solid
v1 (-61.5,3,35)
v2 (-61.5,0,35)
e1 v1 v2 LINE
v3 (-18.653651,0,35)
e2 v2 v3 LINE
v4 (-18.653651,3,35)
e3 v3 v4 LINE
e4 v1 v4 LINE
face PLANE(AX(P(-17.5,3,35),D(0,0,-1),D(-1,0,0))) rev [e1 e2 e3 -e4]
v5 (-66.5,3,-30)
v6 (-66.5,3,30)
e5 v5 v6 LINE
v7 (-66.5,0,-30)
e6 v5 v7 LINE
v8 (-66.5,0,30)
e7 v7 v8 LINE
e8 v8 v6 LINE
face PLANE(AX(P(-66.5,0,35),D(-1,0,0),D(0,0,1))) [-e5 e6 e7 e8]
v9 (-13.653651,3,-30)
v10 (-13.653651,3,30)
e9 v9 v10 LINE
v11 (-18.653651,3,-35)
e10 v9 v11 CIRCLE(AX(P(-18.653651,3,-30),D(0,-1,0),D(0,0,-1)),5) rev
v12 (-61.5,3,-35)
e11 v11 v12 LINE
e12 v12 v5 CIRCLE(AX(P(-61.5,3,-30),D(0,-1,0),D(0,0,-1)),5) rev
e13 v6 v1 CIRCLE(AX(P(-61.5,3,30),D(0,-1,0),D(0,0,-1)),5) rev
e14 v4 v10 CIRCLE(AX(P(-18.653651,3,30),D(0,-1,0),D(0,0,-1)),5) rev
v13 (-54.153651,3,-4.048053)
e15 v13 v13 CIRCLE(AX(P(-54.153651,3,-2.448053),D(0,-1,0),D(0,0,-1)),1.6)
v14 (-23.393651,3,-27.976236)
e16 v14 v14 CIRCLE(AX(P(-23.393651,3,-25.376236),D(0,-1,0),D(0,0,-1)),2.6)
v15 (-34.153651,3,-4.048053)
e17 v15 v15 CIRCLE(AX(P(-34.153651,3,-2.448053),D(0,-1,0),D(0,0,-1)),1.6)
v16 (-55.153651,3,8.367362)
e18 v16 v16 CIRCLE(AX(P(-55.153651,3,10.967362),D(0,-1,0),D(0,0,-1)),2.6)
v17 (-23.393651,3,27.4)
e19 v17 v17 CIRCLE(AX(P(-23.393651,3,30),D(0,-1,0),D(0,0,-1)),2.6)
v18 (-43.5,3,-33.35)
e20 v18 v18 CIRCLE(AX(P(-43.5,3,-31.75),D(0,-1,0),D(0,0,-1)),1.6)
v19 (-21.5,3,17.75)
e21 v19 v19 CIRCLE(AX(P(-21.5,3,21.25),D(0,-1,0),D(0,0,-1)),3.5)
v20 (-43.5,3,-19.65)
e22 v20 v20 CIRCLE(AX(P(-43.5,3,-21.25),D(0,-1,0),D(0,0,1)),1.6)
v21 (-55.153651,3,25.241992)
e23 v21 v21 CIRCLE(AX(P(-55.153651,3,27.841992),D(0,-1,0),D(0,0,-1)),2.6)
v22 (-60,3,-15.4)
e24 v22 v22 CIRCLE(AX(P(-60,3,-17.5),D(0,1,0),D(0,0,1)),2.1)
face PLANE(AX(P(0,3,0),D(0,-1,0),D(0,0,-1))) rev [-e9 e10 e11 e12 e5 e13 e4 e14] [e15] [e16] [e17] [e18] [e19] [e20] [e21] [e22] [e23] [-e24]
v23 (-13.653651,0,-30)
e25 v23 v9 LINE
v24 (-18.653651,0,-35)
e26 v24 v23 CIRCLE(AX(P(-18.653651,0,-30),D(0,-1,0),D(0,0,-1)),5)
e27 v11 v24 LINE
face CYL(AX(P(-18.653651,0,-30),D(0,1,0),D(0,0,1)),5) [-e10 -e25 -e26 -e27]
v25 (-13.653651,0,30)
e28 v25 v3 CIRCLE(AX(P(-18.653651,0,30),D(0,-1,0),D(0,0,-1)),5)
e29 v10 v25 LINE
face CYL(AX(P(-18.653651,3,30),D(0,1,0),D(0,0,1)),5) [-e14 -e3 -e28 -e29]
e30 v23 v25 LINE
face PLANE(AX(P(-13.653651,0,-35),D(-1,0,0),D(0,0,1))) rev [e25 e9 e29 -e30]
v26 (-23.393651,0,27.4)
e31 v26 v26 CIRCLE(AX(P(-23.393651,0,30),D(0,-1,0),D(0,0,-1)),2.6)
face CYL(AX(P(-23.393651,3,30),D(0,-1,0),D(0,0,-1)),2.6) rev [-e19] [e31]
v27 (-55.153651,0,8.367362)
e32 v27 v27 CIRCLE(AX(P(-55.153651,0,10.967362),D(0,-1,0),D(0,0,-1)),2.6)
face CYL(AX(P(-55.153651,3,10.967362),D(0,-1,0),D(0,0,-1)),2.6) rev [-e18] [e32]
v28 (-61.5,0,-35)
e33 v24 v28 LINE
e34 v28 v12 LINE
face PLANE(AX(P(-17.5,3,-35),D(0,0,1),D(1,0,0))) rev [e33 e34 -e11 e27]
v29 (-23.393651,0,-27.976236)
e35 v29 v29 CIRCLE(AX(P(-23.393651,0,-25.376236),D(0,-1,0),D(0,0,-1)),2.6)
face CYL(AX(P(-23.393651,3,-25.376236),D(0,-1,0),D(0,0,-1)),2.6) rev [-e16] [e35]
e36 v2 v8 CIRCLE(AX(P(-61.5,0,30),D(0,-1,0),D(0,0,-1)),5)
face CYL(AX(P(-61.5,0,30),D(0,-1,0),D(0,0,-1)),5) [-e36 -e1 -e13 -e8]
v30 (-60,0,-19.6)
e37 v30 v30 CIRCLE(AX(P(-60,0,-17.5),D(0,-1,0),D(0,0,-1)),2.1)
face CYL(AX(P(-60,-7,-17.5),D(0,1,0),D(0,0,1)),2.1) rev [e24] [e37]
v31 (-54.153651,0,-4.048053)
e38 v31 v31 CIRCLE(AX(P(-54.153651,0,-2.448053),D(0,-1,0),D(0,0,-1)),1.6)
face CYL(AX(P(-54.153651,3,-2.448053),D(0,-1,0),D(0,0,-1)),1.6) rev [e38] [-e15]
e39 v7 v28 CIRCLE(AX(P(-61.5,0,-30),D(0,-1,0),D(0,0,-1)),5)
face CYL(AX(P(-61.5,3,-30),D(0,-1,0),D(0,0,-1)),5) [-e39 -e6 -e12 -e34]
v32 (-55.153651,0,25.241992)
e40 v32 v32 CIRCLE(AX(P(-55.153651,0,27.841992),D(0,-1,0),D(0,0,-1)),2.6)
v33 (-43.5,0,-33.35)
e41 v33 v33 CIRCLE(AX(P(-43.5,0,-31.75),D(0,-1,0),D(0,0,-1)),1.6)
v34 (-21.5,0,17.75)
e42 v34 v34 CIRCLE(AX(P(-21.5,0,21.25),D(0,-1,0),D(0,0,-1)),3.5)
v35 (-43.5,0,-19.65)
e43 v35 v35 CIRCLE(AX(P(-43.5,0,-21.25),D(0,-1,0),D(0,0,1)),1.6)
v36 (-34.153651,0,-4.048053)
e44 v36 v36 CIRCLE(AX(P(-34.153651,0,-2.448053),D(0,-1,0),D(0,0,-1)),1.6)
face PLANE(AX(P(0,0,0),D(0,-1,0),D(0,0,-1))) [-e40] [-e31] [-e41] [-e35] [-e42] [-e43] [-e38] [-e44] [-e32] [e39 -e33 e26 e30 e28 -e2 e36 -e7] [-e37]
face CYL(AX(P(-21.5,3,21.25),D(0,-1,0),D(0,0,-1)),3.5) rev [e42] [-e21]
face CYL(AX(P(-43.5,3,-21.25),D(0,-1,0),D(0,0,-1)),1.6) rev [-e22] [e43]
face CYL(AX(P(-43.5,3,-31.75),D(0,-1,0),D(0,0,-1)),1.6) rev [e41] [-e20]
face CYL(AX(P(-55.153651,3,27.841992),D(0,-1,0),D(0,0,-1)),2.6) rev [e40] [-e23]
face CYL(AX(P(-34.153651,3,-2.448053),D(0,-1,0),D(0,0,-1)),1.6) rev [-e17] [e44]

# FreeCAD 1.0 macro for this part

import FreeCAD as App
import Part
import Sketcher
Q = App.Units.Quantity


def edges_at(feature, points):
    """Names of the edges that pass closest to the given points."""
    edges = feature.Shape.Edges
    near = lambda p: min(range(len(edges)), key=lambda i: edges[i].distToShape(Part.Vertex(*p))[0])
    return sorted({f"Edge{near(p) + 1}" for p in points})


def add_polygon(sketch, points):
    """Adds a closed chain of lines whose ends are joined by coincident constraints."""
    first, n = sketch.GeometryCount, len(points)
    for a, b in zip(points, points[1:] + points[:1]):
        sketch.addGeometry(Part.LineSegment(App.Vector(*a, 0), App.Vector(*b, 0)), False)
    for i in range(n):
        sketch.addConstraint(Sketcher.Constraint("Coincident", first + i, 2, first + (i + 1) % n, 1))

doc = App.newDocument("Part")
body = doc.addObject("PartDesign::Body", "Body")

sketch1 = body.newObject("Sketcher::SketchObject", "Sketch")
sketch1.AttachmentSupport = (doc.getObject("XZ_Plane"), [""])
sketch1.MapMode = "FlatFace"
add_polygon(sketch1, [(-17.5, -35), (-17.5, 35), (17.5, 35), (17.5, -35)])
sketch1.addGeometry(Part.Circle(App.Vector(-7.5, 22.5, 0), App.Vector(0, 0, 1), 2.6), False)
sketch1.addGeometry(Part.Circle(App.Vector(-7.5, 10, 0), App.Vector(0, 0, 1), 2.6), False)
sketch1.addGeometry(Part.Circle(App.Vector(-7.5, 0, 0), App.Vector(0, 0, 1), 2.6), False)
sketch1.addGeometry(Part.Circle(App.Vector(-7.5, -10, 0), App.Vector(0, 0, 1), 2.6), False)
sketch1.addGeometry(Part.Circle(App.Vector(-7.5, -22.5, 0), App.Vector(0, 0, 1), 2.6), False)
sketch1.addConstraint(Sketcher.Constraint("Vertical", 0))
sketch1.addConstraint(Sketcher.Constraint("Horizontal", 1))
sketch1.addConstraint(Sketcher.Constraint("Vertical", 2))
sketch1.addConstraint(Sketcher.Constraint("Horizontal", 3))
sketch1.addConstraint(Sketcher.Constraint("Equal", 4, 5))
sketch1.addConstraint(Sketcher.Constraint("Equal", 5, 6))
sketch1.addConstraint(Sketcher.Constraint("Equal", 6, 7))
sketch1.addConstraint(Sketcher.Constraint("Equal", 7, 8))
sketch1.addConstraint(Sketcher.Constraint("Symmetric", 0, 2, 2, 2, -1, 1))
sketch1.addConstraint(Sketcher.Constraint("Symmetric", 5, 3, 7, 3, -1))
sketch1.addConstraint(Sketcher.Constraint("Symmetric", 4, 3, 8, 3, -1))
sketch1.addConstraint(Sketcher.Constraint("PointOnObject", 6, 3, -1))
sketch1.addConstraint(Sketcher.Constraint("Vertical", 4, 3, 5, 3))
sketch1.addConstraint(Sketcher.Constraint("Vertical", 5, 3, 6, 3))
sketch1.addConstraint(Sketcher.Constraint("Diameter", 4, Q("5.2 mm")))
sketch1.addConstraint(Sketcher.Constraint("DistanceX", 1, 1, 1, 2, Q("35 mm")))
sketch1.addConstraint(Sketcher.Constraint("DistanceY", 0, 1, 0, 2, Q("70 mm")))
sketch1.addConstraint(Sketcher.Constraint("DistanceY", -1, 1, 5, 3, Q("10 mm")))
sketch1.addConstraint(Sketcher.Constraint("DistanceY", 8, 3, 4, 3, Q("45 mm")))
sketch1.addConstraint(Sketcher.Constraint("DistanceX", 0, 2, 4, 3, Q("10 mm")))
pad1 = body.newObject("PartDesign::Pad", "Pad")
pad1.Profile = sketch1
pad1.Length = 3
pad1.Reversed = True

sketch2 = body.newObject("Sketcher::SketchObject", "Sketch001")
sketch2.AttachmentSupport = (doc.getObject("XZ_Plane"), [""])
sketch2.MapMode = "FlatFace"
sketch2.AttachmentOffset = App.Placement(App.Vector(0, 0, -3), App.Rotation())
sketch2.addGeometry(Part.Circle(App.Vector(10, 0, 0), App.Vector(0, 0, 1), 2.1), False)
sketch2.addConstraint(Sketcher.Constraint("PointOnObject", 0, 3, -1))
sketch2.addConstraint(Sketcher.Constraint("Diameter", 0, Q("4.2 mm")))
sketch2.addConstraint(Sketcher.Constraint("DistanceX", -1, 1, 0, 3, Q("10 mm")))
pocket1 = body.newObject("PartDesign::Pocket", "Pocket")
pocket1.Profile = sketch2
pocket1.Length = 3
pocket1.Reversed = True

sketch3 = body.newObject("Sketcher::SketchObject", "Sketch002")
sketch3.AttachmentSupport = (doc.getObject("XZ_Plane"), [""])
sketch3.MapMode = "FlatFace"
sketch3.AttachmentOffset = App.Placement(App.Vector(0, 0, -3), App.Rotation())
sketch3.addGeometry(Part.Circle(App.Vector(-7.5, 10, 0), App.Vector(0, 0, 1), 2.6), False)
sketch3.addGeometry(Part.Circle(App.Vector(-7.5, -10, 0), App.Vector(0, 0, 1), 2.6), False)
sketch3.addConstraint(Sketcher.Constraint("Equal", 0, 1))
sketch3.addConstraint(Sketcher.Constraint("Symmetric", 0, 3, 1, 3, -1))
sketch3.addConstraint(Sketcher.Constraint("Diameter", 0, Q("5.2 mm")))
sketch3.addConstraint(Sketcher.Constraint("DistanceY", -1, 1, 0, 3, Q("10 mm")))
sketch3.addConstraint(Sketcher.Constraint("DistanceX", 0, 3, -1, 1, Q("7.5 mm")))
pad2 = body.newObject("PartDesign::Pad", "Pad001")
pad2.Profile = sketch3
pad2.Length = 3

sketch4 = body.newObject("Sketcher::SketchObject", "Sketch003")
sketch4.AttachmentSupport = (doc.getObject("XZ_Plane"), [""])
sketch4.MapMode = "FlatFace"
sketch4.AttachmentOffset = App.Placement(App.Vector(0, 0, -3), App.Rotation())
sketch4.addGeometry(Part.Circle(App.Vector(10, -22.5, 0), App.Vector(0, 0, 1), 2.1), False)
sketch4.addGeometry(Part.Circle(App.Vector(10, 22.5, 0), App.Vector(0, 0, 1), 2.1), False)
sketch4.addConstraint(Sketcher.Constraint("Equal", 0, 1))
sketch4.addConstraint(Sketcher.Constraint("Symmetric", 0, 3, 1, 3, -1))
sketch4.addConstraint(Sketcher.Constraint("Diameter", 0, Q("4.2 mm")))
sketch4.addConstraint(Sketcher.Constraint("DistanceX", -1, 1, 0, 3, Q("10 mm")))
sketch4.addConstraint(Sketcher.Constraint("DistanceY", 0, 3, 1, 3, Q("45 mm")))
pocket2 = body.newObject("PartDesign::Pocket", "Pocket001")
pocket2.Profile = sketch4
pocket2.Type = "ThroughAll"
pocket2.Reversed = True

sketch5 = body.newObject("Sketcher::SketchObject", "Sketch004")
sketch5.AttachmentSupport = (doc.getObject("XZ_Plane"), [""])
sketch5.MapMode = "FlatFace"
sketch5.AttachmentOffset = App.Placement(App.Vector(0, 0, -3), App.Rotation())
add_polygon(sketch5, [(-66.5, -35), (-66.5, 35), (-17.5, 35), (-17.5, -35)])
sketch5.addConstraint(Sketcher.Constraint("Vertical", 0))
sketch5.addConstraint(Sketcher.Constraint("Horizontal", 1))
sketch5.addConstraint(Sketcher.Constraint("Vertical", 2))
sketch5.addConstraint(Sketcher.Constraint("Horizontal", 3))
sketch5.addConstraint(Sketcher.Constraint("DistanceX", 1, 1, 1, 2, Q("49 mm")))
sketch5.addConstraint(Sketcher.Constraint("DistanceY", 0, 1, 0, 2, Q("70 mm")))
sketch5.addConstraint(Sketcher.Constraint("DistanceY", -1, 1, 0, 2, Q("35 mm")))
sketch5.addConstraint(Sketcher.Constraint("DistanceX", 0, 2, -1, 1, Q("66.5 mm")))
pad3 = body.newObject("PartDesign::Pad", "Pad002")
pad3.Profile = sketch5
pad3.Length = 3

sketch6 = body.newObject("Sketcher::SketchObject", "Sketch005")
sketch6.AttachmentSupport = (doc.getObject("XZ_Plane"), [""])
sketch6.MapMode = "FlatFace"
sketch6.AttachmentOffset = App.Placement(App.Vector(0, 0, -3), App.Rotation())
sketch6.addGeometry(Part.Circle(App.Vector(-44.5, 0, 0), App.Vector(0, 0, 1), 2.1), False)
sketch6.addGeometry(Part.Circle(App.Vector(-36.5, 0, 0), App.Vector(0, 0, 1), 2.1), False)
sketch6.addConstraint(Sketcher.Constraint("Equal", 0, 1))
sketch6.addConstraint(Sketcher.Constraint("PointOnObject", 0, 3, -1))
sketch6.addConstraint(Sketcher.Constraint("PointOnObject", 1, 3, -1))
sketch6.addConstraint(Sketcher.Constraint("Diameter", 0, Q("4.2 mm")))
sketch6.addConstraint(Sketcher.Constraint("DistanceX", 0, 3, 1, 3, Q("8 mm")))
sketch6.addConstraint(Sketcher.Constraint("DistanceX", 0, 3, -1, 1, Q("44.5 mm")))
pocket3 = body.newObject("PartDesign::Pocket", "Pocket002")
pocket3.Profile = sketch6
pocket3.Length = 10
pocket3.Reversed = True

sketch7 = body.newObject("Sketcher::SketchObject", "Sketch006")
sketch7.AttachmentSupport = (doc.getObject("XZ_Plane"), [""])
sketch7.MapMode = "FlatFace"
sketch7.AttachmentOffset = App.Placement(App.Vector(0, 0, -3), App.Rotation())
sketch7.addGeometry(Part.Circle(App.Vector(-60, -17.5, 0), App.Vector(0, 0, 1), 2.1), False)
sketch7.addGeometry(Part.Circle(App.Vector(-60, 17.5, 0), App.Vector(0, 0, 1), 2.1), False)
sketch7.addConstraint(Sketcher.Constraint("Equal", 0, 1))
sketch7.addConstraint(Sketcher.Constraint("Symmetric", 0, 3, 1, 3, -1))
sketch7.addConstraint(Sketcher.Constraint("Diameter", 0, Q("4.2 mm")))
sketch7.addConstraint(Sketcher.Constraint("DistanceX", 0, 3, -1, 1, Q("60 mm")))
sketch7.addConstraint(Sketcher.Constraint("DistanceY", 0, 3, 1, 3, Q("35 mm")))
pocket4 = body.newObject("PartDesign::Pocket", "Pocket003")
pocket4.Profile = sketch7
pocket4.Length = 10
pocket4.Reversed = True

sketch8 = body.newObject("Sketcher::SketchObject", "Sketch007")
sketch8.AttachmentSupport = (doc.getObject("XZ_Plane"), [""])
sketch8.MapMode = "FlatFace"
sketch8.addGeometry(Part.Circle(App.Vector(-43.5, -21.25, 0), App.Vector(0, 0, 1), 1.6), False)
sketch8.addGeometry(Part.Circle(App.Vector(-21.5, -31.75, 0), App.Vector(0, 0, 1), 1.6), False)
sketch8.addGeometry(Part.Circle(App.Vector(-43.5, -31.75, 0), App.Vector(0, 0, 1), 1.6), False)
sketch8.addGeometry(Part.Circle(App.Vector(-43.5, 21.25, 0), App.Vector(0, 0, 1), 1.6), False)
sketch8.addGeometry(Part.Circle(App.Vector(-21.5, 31.75, 0), App.Vector(0, 0, 1), 1.6), False)
sketch8.addGeometry(Part.Circle(App.Vector(-43.5, 31.75, 0), App.Vector(0, 0, 1), 1.6), False)
sketch8.addGeometry(Part.Circle(App.Vector(-21.5, 21.25, 0), App.Vector(0, 0, 1), 3.5), False)
sketch8.addGeometry(Part.Circle(App.Vector(-21.5, -21.25, 0), App.Vector(0, 0, 1), 3.5), False)
sketch8.addConstraint(Sketcher.Constraint("Equal", 0, 1))
sketch8.addConstraint(Sketcher.Constraint("Equal", 1, 2))
sketch8.addConstraint(Sketcher.Constraint("Equal", 2, 3))
sketch8.addConstraint(Sketcher.Constraint("Equal", 3, 4))
sketch8.addConstraint(Sketcher.Constraint("Equal", 4, 5))
sketch8.addConstraint(Sketcher.Constraint("Equal", 6, 7))
sketch8.addConstraint(Sketcher.Constraint("Symmetric", 0, 3, 3, 3, -1))
sketch8.addConstraint(Sketcher.Constraint("Symmetric", 1, 3, 4, 3, -1))
sketch8.addConstraint(Sketcher.Constraint("Symmetric", 2, 3, 5, 3, -1))
sketch8.addConstraint(Sketcher.Constraint("Symmetric", 6, 3, 7, 3, -1))
sketch8.addConstraint(Sketcher.Constraint("Horizontal", 1, 3, 2, 3))
sketch8.addConstraint(Sketcher.Constraint("Horizontal", 3, 3, 6, 3))
sketch8.addConstraint(Sketcher.Constraint("Vertical", 0, 3, 2, 3))
sketch8.addConstraint(Sketcher.Constraint("Vertical", 4, 3, 6, 3))
sketch8.addConstraint(Sketcher.Constraint("Diameter", 6, Q("7 mm")))
sketch8.addConstraint(Sketcher.Constraint("Diameter", 0, Q("3.2 mm")))
sketch8.addConstraint(Sketcher.Constraint("DistanceX", 0, 3, 1, 3, Q("22 mm")))
sketch8.addConstraint(Sketcher.Constraint("DistanceY", 2, 3, 3, 3, Q("53 mm")))
sketch8.addConstraint(Sketcher.Constraint("DistanceX", 0, 3, -1, 1, Q("43.5 mm")))
sketch8.addConstraint(Sketcher.Constraint("DistanceY", 1, 3, 0, 3, Q("10.5 mm")))
pocket5 = body.newObject("PartDesign::Pocket", "Pocket004")
pocket5.Profile = sketch8
pocket5.Type = "ThroughAll"
doc.recompute()

fillet = body.newObject("PartDesign::Fillet", "Fillet")
fillet.Base = (pocket5, edges_at(pocket5, [
    (-66.5, 1.5, 35),
    (-66.5, 1.5, -35),
    (17.5, 1.5, 35),
    (17.5, 1.5, -35),
]))
fillet.Radius = 5

sketch9 = body.newObject("Sketcher::SketchObject", "Sketch008")
sketch9.AttachmentSupport = (doc.getObject("XZ_Plane"), [""])
sketch9.MapMode = "FlatFace"
sketch9.AttachmentOffset = App.Placement(App.Vector(0, 0, -3), App.Rotation())
sketch9.addGeometry(Part.Circle(App.Vector(-36.5, 0, 0), App.Vector(0, 0, 1), 2.1), False)
sketch9.addGeometry(Part.Circle(App.Vector(-44.5, 0, 0), App.Vector(0, 0, 1), 2.1), False)
sketch9.addConstraint(Sketcher.Constraint("Equal", 0, 1))
sketch9.addConstraint(Sketcher.Constraint("PointOnObject", 0, 3, -1))
sketch9.addConstraint(Sketcher.Constraint("PointOnObject", 1, 3, -1))
sketch9.addConstraint(Sketcher.Constraint("Diameter", 0, Q("4.2 mm")))
sketch9.addConstraint(Sketcher.Constraint("DistanceX", 1, 3, 0, 3, Q("8 mm")))
sketch9.addConstraint(Sketcher.Constraint("DistanceX", 0, 3, -1, 1, Q("36.5 mm")))
pad4 = body.newObject("PartDesign::Pad", "Pad003")
pad4.Profile = sketch9
pad4.Length = 3

sketch10 = body.newObject("Sketcher::SketchObject", "Sketch009")
sketch10.AttachmentSupport = (doc.getObject("XZ_Plane"), [""])
sketch10.MapMode = "FlatFace"
sketch10.AttachmentOffset = App.Placement(App.Vector(0, 0, -3), App.Rotation())
sketch10.addGeometry(Part.Circle(App.Vector(-52.5, -0.000001, 0), App.Vector(0, 0, 1), 1.5), False)
sketch10.addGeometry(Part.Circle(App.Vector(-28.5, -0.000001, 0), App.Vector(0, 0, 1), 1.5), False)
sketch10.addConstraint(Sketcher.Constraint("Equal", 0, 1))
sketch10.addConstraint(Sketcher.Constraint("PointOnObject", 0, 3, -1))
sketch10.addConstraint(Sketcher.Constraint("PointOnObject", 1, 3, -1))
sketch10.addConstraint(Sketcher.Constraint("Diameter", 0, Q("3 mm")))
sketch10.addConstraint(Sketcher.Constraint("DistanceX", 0, 3, 1, 3, Q("24 mm")))
sketch10.addConstraint(Sketcher.Constraint("DistanceX", 0, 3, -1, 1, Q("52.5 mm")))
pocket6 = body.newObject("PartDesign::Pocket", "Pocket005")
pocket6.Profile = sketch10
pocket6.Type = "ThroughAll"
pocket6.Reversed = True

sketch11 = body.newObject("Sketcher::SketchObject", "Sketch010")
sketch11.AttachmentSupport = (doc.getObject("XZ_Plane"), [""])
sketch11.MapMode = "FlatFace"
sketch11.AttachmentOffset = App.Placement(App.Vector(0, 0, -3), App.Rotation())
add_polygon(sketch11, [(-13.653651, -35), (-13.653651, 35), (19.004748, 35), (19.004748, -35)])
sketch11.addConstraint(Sketcher.Constraint("Vertical", 0))
sketch11.addConstraint(Sketcher.Constraint("Horizontal", 1))
sketch11.addConstraint(Sketcher.Constraint("Vertical", 2))
sketch11.addConstraint(Sketcher.Constraint("Horizontal", 3))
sketch11.addConstraint(Sketcher.Constraint("DistanceY", 0, 1, 0, 2, Q("70 mm")))
sketch11.addConstraint(Sketcher.Constraint("DistanceY", -1, 1, 0, 2, Q("35 mm")))
sketch11.addConstraint(Sketcher.Constraint("DistanceX", 1, 1, 1, 2, Q("32.658399 mm")))
sketch11.addConstraint(Sketcher.Constraint("DistanceX", 0, 2, -1, 1, Q("13.653651 mm")))
pocket7 = body.newObject("PartDesign::Pocket", "Pocket006")
pocket7.Profile = sketch11
pocket7.Type = "ThroughAll"
pocket7.Reversed = True
doc.recompute()

fillet2 = body.newObject("PartDesign::Fillet", "Fillet001")
fillet2.Base = (pocket7, edges_at(pocket7, [(-13.654, 1.5, -35), (-13.654, 1.5, 35)]))
fillet2.Radius = 5

sketch12 = body.newObject("Sketcher::SketchObject", "Sketch011")
sketch12.AttachmentSupport = (doc.getObject("XZ_Plane"), [""])
sketch12.MapMode = "FlatFace"
sketch12.addGeometry(Part.Circle(App.Vector(-21.5, 31.75, 0), App.Vector(0, 0, 1), 1.6), False)
sketch12.addGeometry(Part.Circle(App.Vector(-21.5, -31.75, 0), App.Vector(0, 0, 1), 1.603432), False)
sketch12.addConstraint(Sketcher.Constraint("Symmetric", 0, 3, 1, 3, -1))
sketch12.addConstraint(Sketcher.Constraint("Diameter", 0, Q("3.2 mm")))
sketch12.addConstraint(Sketcher.Constraint("DistanceX", 0, 3, -1, 1, Q("21.5 mm")))
sketch12.addConstraint(Sketcher.Constraint("DistanceY", 1, 3, 0, 3, Q("63.5 mm")))
sketch12.addConstraint(Sketcher.Constraint("Diameter", 1, Q("3.206864 mm")))
pad5 = body.newObject("PartDesign::Pad", "Pad004")
pad5.Profile = sketch12
pad5.Length = 3
pad5.Reversed = True

sketch13 = body.newObject("Sketcher::SketchObject", "Sketch012")
sketch13.AttachmentSupport = (doc.getObject("XZ_Plane"), [""])
sketch13.MapMode = "FlatFace"
sketch13.AttachmentOffset = App.Placement(App.Vector(0, 0, -3), App.Rotation())
sketch13.addGeometry(Part.Circle(App.Vector(-23.393651, 30, 0), App.Vector(0, 0, 1), 2.5), False)
sketch13.addGeometry(Part.Circle(App.Vector(-24.763651, -30, 0), App.Vector(0, 0, 1), 2.5), False)
sketch13.addConstraint(Sketcher.Constraint("Equal", 0, 1))
sketch13.addConstraint(Sketcher.Constraint("Diameter", 0, Q("5 mm")))
sketch13.addConstraint(Sketcher.Constraint("DistanceY", -1, 1, 0, 3, Q("30 mm")))
sketch13.addConstraint(Sketcher.Constraint("DistanceY", 1, 3, -1, 1, Q("30 mm")))
sketch13.addConstraint(Sketcher.Constraint("DistanceX", 1, 3, 0, 3, Q("1.37 mm")))
sketch13.addConstraint(Sketcher.Constraint("DistanceX", 0, 3, -1, 1, Q("23.393651 mm")))
pocket8 = body.newObject("PartDesign::Pocket", "Pocket007")
pocket8.Profile = sketch13
pocket8.Type = "ThroughAll"
pocket8.Reversed = True

sketch14 = body.newObject("Sketcher::SketchObject", "Sketch013")
sketch14.AttachmentSupport = (doc.getObject("XZ_Plane"), [""])
sketch14.MapMode = "FlatFace"
sketch14.addGeometry(Part.Circle(App.Vector(-52.5, -0.000001, 0), App.Vector(0, 0, 1), 1.5), False)
sketch14.addGeometry(Part.Circle(App.Vector(-28.5, -0.000001, 0), App.Vector(0, 0, 1), 1.5), False)
sketch14.addConstraint(Sketcher.Constraint("Equal", 0, 1))
sketch14.addConstraint(Sketcher.Constraint("PointOnObject", 0, 3, -1))
sketch14.addConstraint(Sketcher.Constraint("PointOnObject", 1, 3, -1))
sketch14.addConstraint(Sketcher.Constraint("Diameter", 0, Q("3 mm")))
sketch14.addConstraint(Sketcher.Constraint("DistanceX", 0, 3, 1, 3, Q("24 mm")))
sketch14.addConstraint(Sketcher.Constraint("DistanceX", 0, 3, -1, 1, Q("52.5 mm")))
pad6 = body.newObject("PartDesign::Pad", "Pad005")
pad6.Profile = sketch14
pad6.Length = 3
pad6.Reversed = True

sketch15 = body.newObject("Sketcher::SketchObject", "Sketch014")
sketch15.AttachmentSupport = (doc.getObject("XZ_Plane"), [""])
sketch15.MapMode = "FlatFace"
sketch15.addGeometry(Part.Circle(App.Vector(-54.153651, -2.448053, 0), App.Vector(0, 0, 1), 1.2), False)
sketch15.addGeometry(Part.Circle(App.Vector(-34.153651, -2.448053, 0), App.Vector(0, 0, 1), 1.2), False)
sketch15.addConstraint(Sketcher.Constraint("Equal", 0, 1))
sketch15.addConstraint(Sketcher.Constraint("Horizontal", 0, 3, 1, 3))
sketch15.addConstraint(Sketcher.Constraint("Diameter", 0, Q("2.4 mm")))
sketch15.addConstraint(Sketcher.Constraint("DistanceX", 0, 3, 1, 3, Q("20 mm")))
sketch15.addConstraint(Sketcher.Constraint("DistanceX", 0, 3, -1, 1, Q("54.153651 mm")))
sketch15.addConstraint(Sketcher.Constraint("DistanceY", 0, 3, -1, 1, Q("2.448053 mm")))
pocket9 = body.newObject("PartDesign::Pocket", "Pocket008")
pocket9.Profile = sketch15
pocket9.Type = "ThroughAll"

sketch16 = body.newObject("Sketcher::SketchObject", "Sketch015")
sketch16.AttachmentSupport = (doc.getObject("XZ_Plane"), [""])
sketch16.MapMode = "FlatFace"
sketch16.addGeometry(Part.Circle(App.Vector(-60, 17.5, 0), App.Vector(0, 0, 1), 2.1), False)
sketch16.addGeometry(Part.Circle(App.Vector(-43.5, 21.25, 0), App.Vector(0, 0, 1), 1.6), False)
sketch16.addGeometry(Part.Circle(App.Vector(-43.653651, 31.685693, 0), App.Vector(0, 0, 1), 2.558203), False)
sketch16.addConstraint(Sketcher.Constraint("Diameter", 0, Q("4.2 mm")))
sketch16.addConstraint(Sketcher.Constraint("Diameter", 1, Q("3.2 mm")))
sketch16.addConstraint(Sketcher.Constraint("DistanceX", 0, 3, -1, 1, Q("60 mm")))
sketch16.addConstraint(Sketcher.Constraint("DistanceY", -1, 1, 0, 3, Q("17.5 mm")))
sketch16.addConstraint(Sketcher.Constraint("DistanceX", 1, 3, -1, 1, Q("43.5 mm")))
sketch16.addConstraint(Sketcher.Constraint("DistanceY", -1, 1, 1, 3, Q("21.25 mm")))
sketch16.addConstraint(Sketcher.Constraint("Diameter", 2, Q("5.116406 mm")))
sketch16.addConstraint(Sketcher.Constraint("DistanceX", 2, 3, -1, 1, Q("43.653651 mm")))
sketch16.addConstraint(Sketcher.Constraint("DistanceY", -1, 1, 2, 3, Q("31.685693 mm")))
pad7 = body.newObject("PartDesign::Pad", "Pad006")
pad7.Profile = sketch16
pad7.Length = 3
pad7.Reversed = True

sketch17 = body.newObject("Sketcher::SketchObject", "Sketch016")
sketch17.AttachmentSupport = (doc.getObject("XZ_Plane"), [""])
sketch17.MapMode = "FlatFace"
sketch17.addGeometry(Part.Circle(App.Vector(-21.5, -21.25, 0), App.Vector(0, 0, 1), 3.5), False)
sketch17.addGeometry(Part.Circle(App.Vector(-24.763651, -30, 0), App.Vector(0, 0, 1), 2.5), False)
sketch17.addConstraint(Sketcher.Constraint("Diameter", 0, Q("7 mm")))
sketch17.addConstraint(Sketcher.Constraint("Diameter", 1, Q("5 mm")))
sketch17.addConstraint(Sketcher.Constraint("DistanceY", 1, 3, -1, 1, Q("30 mm")))
sketch17.addConstraint(Sketcher.Constraint("DistanceX", 0, 3, -1, 1, Q("21.5 mm")))
sketch17.addConstraint(Sketcher.Constraint("DistanceY", 0, 3, -1, 1, Q("21.25 mm")))
sketch17.addConstraint(Sketcher.Constraint("DistanceX", 1, 3, -1, 1, Q("24.763651 mm")))
pad8 = body.newObject("PartDesign::Pad", "Pad007")
pad8.Profile = sketch17
pad8.Length = 3
pad8.Reversed = True

sketch18 = body.newObject("Sketcher::SketchObject", "Sketch017")
sketch18.AttachmentSupport = (doc.getObject("XZ_Plane"), [""])
sketch18.MapMode = "FlatFace"
sketch18.AttachmentOffset = App.Placement(App.Vector(0, 0, -3), App.Rotation())
sketch18.addGeometry(Part.Circle(App.Vector(-23.393651, -25.376236, 0), App.Vector(0, 0, 1), 2.5), False)
sketch18.addConstraint(Sketcher.Constraint("Diameter", 0, Q("5 mm")))
sketch18.addConstraint(Sketcher.Constraint("DistanceX", 0, 3, -1, 1, Q("23.393651 mm")))
sketch18.addConstraint(Sketcher.Constraint("DistanceY", 0, 3, -1, 1, Q("25.376236 mm")))
pocket10 = body.newObject("PartDesign::Pocket", "Pocket009")
pocket10.Profile = sketch18
pocket10.Type = "ThroughAll"
pocket10.Reversed = True

sketch19 = body.newObject("Sketcher::SketchObject", "Sketch018")
sketch19.AttachmentSupport = (doc.getObject("XZ_Plane"), [""])
sketch19.MapMode = "FlatFace"
sketch19.addGeometry(Part.Circle(App.Vector(-55.153651, 27.841992, 0), App.Vector(0, 0, 1), 2.6), False)
sketch19.addGeometry(Part.Circle(App.Vector(-23.393651, -25.376236, 0), App.Vector(0, 0, 1), 2.6), False)
sketch19.addGeometry(Part.Circle(App.Vector(-23.393651, 30, 0), App.Vector(0, 0, 1), 2.6), False)
sketch19.addGeometry(Part.Circle(App.Vector(-55.153651, 10.967362, 0), App.Vector(0, 0, 1), 2.6), False)
sketch19.addGeometry(Part.Circle(App.Vector(-54.153651, -2.448053, 0), App.Vector(0, 0, 1), 1.6), False)
sketch19.addGeometry(Part.Circle(App.Vector(-34.153651, -2.448053, 0), App.Vector(0, 0, 1), 1.6), False)
sketch19.addConstraint(Sketcher.Constraint("Equal", 0, 1))
sketch19.addConstraint(Sketcher.Constraint("Equal", 1, 2))
sketch19.addConstraint(Sketcher.Constraint("Equal", 2, 3))
sketch19.addConstraint(Sketcher.Constraint("Equal", 4, 5))
sketch19.addConstraint(Sketcher.Constraint("Horizontal", 4, 3, 5, 3))
sketch19.addConstraint(Sketcher.Constraint("Vertical", 1, 3, 2, 3))
sketch19.addConstraint(Sketcher.Constraint("Vertical", 0, 3, 3, 3))
sketch19.addConstraint(Sketcher.Constraint("Diameter", 0, Q("5.2 mm")))
sketch19.addConstraint(Sketcher.Constraint("Diameter", 4, Q("3.2 mm")))
sketch19.addConstraint(Sketcher.Constraint("DistanceY", -1, 1, 2, 3, Q("30 mm")))
sketch19.addConstraint(Sketcher.Constraint("DistanceX", 3, 3, 4, 3, Q("1 mm")))
sketch19.addConstraint(Sketcher.Constraint("DistanceX", 4, 3, 5, 3, Q("20 mm")))
sketch19.addConstraint(Sketcher.Constraint("DistanceX", 0, 3, 1, 3, Q("31.76 mm")))
sketch19.addConstraint(Sketcher.Constraint("DistanceY", 1, 3, 3, 3, Q("36.343598 mm")))
sketch19.addConstraint(Sketcher.Constraint("DistanceX", 0, 3, -1, 1, Q("55.153651 mm")))
sketch19.addConstraint(Sketcher.Constraint("DistanceY", 1, 3, 0, 3, Q("53.218228 mm")))
sketch19.addConstraint(Sketcher.Constraint("DistanceY", -1, 1, 0, 3, Q("27.841992 mm")))
sketch19.addConstraint(Sketcher.Constraint("DistanceY", 4, 3, -1, 1, Q("2.448053 mm")))
pocket11 = body.newObject("PartDesign::Pocket", "Pocket010")
pocket11.Profile = sketch19
pocket11.Type = "ThroughAll"

doc.recompute()
